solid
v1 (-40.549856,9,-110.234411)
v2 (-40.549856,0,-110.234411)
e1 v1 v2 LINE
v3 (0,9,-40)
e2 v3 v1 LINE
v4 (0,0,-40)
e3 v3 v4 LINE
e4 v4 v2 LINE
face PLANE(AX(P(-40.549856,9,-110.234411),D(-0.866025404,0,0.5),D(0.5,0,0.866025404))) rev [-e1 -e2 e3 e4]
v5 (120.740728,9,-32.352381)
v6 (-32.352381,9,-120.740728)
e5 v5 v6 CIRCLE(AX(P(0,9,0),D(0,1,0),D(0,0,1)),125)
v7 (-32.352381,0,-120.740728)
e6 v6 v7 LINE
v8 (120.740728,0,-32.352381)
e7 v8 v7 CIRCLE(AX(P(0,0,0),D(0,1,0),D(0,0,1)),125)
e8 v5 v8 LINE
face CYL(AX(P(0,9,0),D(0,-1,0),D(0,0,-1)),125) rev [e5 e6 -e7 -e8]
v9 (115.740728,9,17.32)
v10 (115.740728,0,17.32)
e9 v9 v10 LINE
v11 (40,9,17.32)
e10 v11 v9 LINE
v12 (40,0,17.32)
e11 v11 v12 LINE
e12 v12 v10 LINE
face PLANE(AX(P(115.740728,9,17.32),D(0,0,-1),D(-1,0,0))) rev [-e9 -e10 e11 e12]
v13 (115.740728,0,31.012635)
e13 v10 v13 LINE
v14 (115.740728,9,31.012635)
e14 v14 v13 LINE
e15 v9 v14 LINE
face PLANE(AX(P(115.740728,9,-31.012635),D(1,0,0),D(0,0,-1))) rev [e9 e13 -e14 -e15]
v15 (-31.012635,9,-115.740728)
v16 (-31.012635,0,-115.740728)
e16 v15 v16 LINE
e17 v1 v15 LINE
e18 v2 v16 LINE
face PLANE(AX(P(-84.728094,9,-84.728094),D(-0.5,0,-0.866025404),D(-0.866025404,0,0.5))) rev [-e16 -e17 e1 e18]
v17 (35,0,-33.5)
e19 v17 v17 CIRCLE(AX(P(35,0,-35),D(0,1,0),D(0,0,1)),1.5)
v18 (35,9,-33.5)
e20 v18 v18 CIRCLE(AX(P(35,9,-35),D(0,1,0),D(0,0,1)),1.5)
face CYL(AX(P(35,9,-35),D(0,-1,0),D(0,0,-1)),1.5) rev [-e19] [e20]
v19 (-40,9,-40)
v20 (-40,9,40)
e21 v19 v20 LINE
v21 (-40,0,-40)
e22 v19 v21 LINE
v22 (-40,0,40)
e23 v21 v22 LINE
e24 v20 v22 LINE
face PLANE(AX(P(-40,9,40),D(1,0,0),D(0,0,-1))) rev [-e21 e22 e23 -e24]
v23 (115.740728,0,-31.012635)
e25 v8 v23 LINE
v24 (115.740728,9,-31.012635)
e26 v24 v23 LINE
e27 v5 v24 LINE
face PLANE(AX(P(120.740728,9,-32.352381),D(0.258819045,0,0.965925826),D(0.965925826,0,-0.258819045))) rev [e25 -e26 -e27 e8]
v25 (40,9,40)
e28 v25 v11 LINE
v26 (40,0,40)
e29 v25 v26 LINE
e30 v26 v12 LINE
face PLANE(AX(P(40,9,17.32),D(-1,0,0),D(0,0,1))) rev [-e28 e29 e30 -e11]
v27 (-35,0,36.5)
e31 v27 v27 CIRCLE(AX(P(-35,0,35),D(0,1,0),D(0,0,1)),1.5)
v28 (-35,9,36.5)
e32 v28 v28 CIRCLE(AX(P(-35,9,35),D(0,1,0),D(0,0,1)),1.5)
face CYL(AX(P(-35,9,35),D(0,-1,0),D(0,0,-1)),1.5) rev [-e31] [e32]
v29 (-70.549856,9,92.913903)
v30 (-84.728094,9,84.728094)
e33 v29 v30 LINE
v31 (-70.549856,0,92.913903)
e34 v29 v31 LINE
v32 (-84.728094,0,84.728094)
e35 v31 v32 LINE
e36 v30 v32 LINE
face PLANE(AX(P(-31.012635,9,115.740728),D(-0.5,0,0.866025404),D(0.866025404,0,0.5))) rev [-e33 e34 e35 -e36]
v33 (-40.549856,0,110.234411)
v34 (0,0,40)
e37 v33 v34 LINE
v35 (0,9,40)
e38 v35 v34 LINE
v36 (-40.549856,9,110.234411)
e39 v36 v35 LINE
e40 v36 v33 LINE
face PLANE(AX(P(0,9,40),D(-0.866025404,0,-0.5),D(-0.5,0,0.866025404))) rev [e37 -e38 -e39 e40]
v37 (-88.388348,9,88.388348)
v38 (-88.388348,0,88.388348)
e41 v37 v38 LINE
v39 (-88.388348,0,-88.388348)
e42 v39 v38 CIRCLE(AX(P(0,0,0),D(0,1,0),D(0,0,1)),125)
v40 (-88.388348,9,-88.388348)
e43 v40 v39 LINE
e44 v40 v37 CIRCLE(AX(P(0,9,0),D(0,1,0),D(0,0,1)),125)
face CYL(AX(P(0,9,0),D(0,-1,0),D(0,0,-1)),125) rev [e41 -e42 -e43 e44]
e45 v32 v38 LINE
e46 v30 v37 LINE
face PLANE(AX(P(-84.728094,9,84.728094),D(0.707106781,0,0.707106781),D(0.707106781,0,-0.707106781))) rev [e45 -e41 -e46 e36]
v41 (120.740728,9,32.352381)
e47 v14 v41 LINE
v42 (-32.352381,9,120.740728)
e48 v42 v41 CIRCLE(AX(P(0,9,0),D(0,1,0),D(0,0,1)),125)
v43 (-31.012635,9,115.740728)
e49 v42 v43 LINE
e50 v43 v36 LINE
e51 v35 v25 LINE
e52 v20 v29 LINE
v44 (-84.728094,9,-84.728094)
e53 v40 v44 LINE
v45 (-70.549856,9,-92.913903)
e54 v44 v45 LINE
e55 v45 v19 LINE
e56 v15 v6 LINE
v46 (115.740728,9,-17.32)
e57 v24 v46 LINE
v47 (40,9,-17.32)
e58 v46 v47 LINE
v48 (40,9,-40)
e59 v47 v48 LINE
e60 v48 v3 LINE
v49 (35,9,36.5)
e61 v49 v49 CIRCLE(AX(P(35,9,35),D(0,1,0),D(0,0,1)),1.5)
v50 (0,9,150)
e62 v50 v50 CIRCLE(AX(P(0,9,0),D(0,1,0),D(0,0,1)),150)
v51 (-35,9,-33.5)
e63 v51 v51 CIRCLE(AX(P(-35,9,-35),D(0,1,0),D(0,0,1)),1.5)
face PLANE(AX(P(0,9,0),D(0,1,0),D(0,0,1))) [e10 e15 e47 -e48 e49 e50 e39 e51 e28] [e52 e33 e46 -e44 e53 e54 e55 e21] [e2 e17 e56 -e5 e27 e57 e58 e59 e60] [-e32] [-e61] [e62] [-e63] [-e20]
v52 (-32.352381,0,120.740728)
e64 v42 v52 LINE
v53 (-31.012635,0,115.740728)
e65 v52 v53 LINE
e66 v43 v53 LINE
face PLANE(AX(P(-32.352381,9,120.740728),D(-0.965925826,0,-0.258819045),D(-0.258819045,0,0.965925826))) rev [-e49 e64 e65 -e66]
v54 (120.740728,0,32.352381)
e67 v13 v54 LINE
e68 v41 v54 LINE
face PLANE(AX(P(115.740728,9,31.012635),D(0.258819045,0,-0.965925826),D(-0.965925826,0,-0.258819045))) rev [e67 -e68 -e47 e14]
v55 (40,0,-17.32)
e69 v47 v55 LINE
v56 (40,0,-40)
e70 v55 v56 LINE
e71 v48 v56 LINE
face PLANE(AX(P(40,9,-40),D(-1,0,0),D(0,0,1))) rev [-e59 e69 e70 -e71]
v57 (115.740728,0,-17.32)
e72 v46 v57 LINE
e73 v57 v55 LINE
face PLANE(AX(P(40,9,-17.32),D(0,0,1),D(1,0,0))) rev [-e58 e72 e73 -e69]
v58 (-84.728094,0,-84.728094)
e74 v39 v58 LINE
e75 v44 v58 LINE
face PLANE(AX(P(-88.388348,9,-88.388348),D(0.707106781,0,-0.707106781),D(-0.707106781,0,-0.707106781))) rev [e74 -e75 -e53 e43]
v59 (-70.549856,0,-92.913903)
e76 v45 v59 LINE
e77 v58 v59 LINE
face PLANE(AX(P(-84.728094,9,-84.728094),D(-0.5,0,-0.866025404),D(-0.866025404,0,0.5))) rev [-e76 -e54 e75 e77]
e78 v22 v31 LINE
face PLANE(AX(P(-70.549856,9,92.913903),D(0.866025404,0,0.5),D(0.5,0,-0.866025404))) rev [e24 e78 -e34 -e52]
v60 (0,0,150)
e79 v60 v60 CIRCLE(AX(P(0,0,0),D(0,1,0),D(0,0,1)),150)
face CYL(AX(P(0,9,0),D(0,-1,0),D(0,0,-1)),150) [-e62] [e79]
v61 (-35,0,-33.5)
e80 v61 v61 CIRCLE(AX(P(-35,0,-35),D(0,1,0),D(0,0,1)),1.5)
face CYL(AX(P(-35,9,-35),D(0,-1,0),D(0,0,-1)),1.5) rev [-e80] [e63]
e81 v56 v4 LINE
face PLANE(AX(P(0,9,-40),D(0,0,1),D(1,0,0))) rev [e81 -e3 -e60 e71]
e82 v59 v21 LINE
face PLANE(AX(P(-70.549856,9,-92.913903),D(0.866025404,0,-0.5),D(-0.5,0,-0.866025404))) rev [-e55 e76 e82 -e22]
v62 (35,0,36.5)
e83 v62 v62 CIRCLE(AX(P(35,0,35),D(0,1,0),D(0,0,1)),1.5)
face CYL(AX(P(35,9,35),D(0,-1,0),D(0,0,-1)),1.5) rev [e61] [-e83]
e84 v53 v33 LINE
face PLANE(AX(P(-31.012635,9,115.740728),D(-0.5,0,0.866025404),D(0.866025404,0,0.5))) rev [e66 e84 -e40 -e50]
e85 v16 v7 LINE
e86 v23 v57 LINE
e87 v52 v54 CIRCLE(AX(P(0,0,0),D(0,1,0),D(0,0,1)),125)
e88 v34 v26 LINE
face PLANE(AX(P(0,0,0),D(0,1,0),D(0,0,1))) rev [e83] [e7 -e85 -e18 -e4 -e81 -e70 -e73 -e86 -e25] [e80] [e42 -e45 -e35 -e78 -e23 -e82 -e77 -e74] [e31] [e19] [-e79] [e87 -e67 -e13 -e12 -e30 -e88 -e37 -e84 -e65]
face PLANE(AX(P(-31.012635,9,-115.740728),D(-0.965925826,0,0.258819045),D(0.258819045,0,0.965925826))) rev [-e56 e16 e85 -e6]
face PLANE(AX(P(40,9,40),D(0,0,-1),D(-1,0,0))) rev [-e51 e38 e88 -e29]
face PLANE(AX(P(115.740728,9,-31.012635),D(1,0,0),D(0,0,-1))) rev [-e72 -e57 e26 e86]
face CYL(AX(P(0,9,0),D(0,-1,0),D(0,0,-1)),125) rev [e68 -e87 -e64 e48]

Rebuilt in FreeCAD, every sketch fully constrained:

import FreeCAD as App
import Part
import Sketcher
Q = App.Units.Quantity


def add_polygon(sketch, points):
    """Adds a closed chain of lines whose ends are joined by coincident constraints."""
    first, n = sketch.GeometryCount, len(points)
    for a, b in zip(points, points[1:] + points[:1]):
        sketch.addGeometry(Part.LineSegment(App.Vector(*a, 0), App.Vector(*b, 0)), False)
    for i in range(n):
        sketch.addConstraint(Sketcher.Constraint("Coincident", first + i, 2, first + (i + 1) % n, 1))

doc = App.newDocument("Part")
body = doc.addObject("PartDesign::Body", "Body")

# Sketch on XZ plane
sketch1 = body.newObject("Sketcher::SketchObject", "Sketch")
sketch1.AttachmentSupport = (doc.getObject("XZ_Plane"), [""])
sketch1.MapMode = "FlatFace"
sketch1.addGeometry([
    Part.Circle(App.Vector(0, 0, 0), App.Vector(0, 0, 1), 150),
    Part.Circle(App.Vector(0, 0, 0), App.Vector(0, 0, 1), 125),
], False)
sketch1.addConstraint([
    Sketcher.Constraint("Coincident", 0, 3, -1, 1),
    Sketcher.Constraint("Coincident", 1, 3, -1, 1),
    Sketcher.Constraint("Diameter", 0, Q("300 mm")),
    Sketcher.Constraint("Diameter", 1, Q("250 mm")),
])
pad1 = body.newObject("PartDesign::Pad", "Pad")
pad1.Profile = sketch1
pad1.Length = 9
pad1.Reversed = True

# Sketch on XZ plane
sketch2 = body.newObject("Sketcher::SketchObject", "Sketch001")
sketch2.AttachmentSupport = (doc.getObject("XZ_Plane"), [""])
sketch2.MapMode = "FlatFace"
add_polygon(sketch2, [(146.469531, -32.352381), (120.740728, -32.352381), (115.740728, -31.012635), (115.740728, 31.012635), (120.740728, 32.352381), (146.469531, 32.352381)])  # lines 0-5
add_polygon(sketch2, [(-88.388348, 88.388348), (-101.252749, 110.670144), (-45.216782, 143.022525), (-32.352381, 120.740728), (-31.012635, 115.740728), (-84.728094, 84.728094)])  # lines 6-11
add_polygon(sketch2, [(-32.352381, -120.740728), (-45.216782, -143.022525), (-101.252749, -110.670144), (-88.388348, -88.388348), (-84.728094, -84.728094), (-31.012635, -115.740728)])  # lines 12-17
sketch2.addConstraint([
    Sketcher.Constraint("Horizontal", 0),
    Sketcher.Constraint("Vertical", 2),
    Sketcher.Constraint("Horizontal", 4),
    Sketcher.Constraint("Vertical", 5),
    Sketcher.Constraint("Symmetric", 0, 2, 3, 2, -1),
    Sketcher.Constraint("Symmetric", 7, 2, 12, 2, -1),
    Sketcher.Constraint("Symmetric", 6, 2, 13, 2, -1),
    Sketcher.Constraint("Symmetric", 11, 2, 14, 2, -1),
    Sketcher.Constraint("Symmetric", 10, 2, 15, 2, -1),
    Sketcher.Constraint("Symmetric", 9, 2, 16, 2, -1),
    Sketcher.Constraint("Symmetric", 8, 2, 17, 2, -1),
    Sketcher.Constraint("Perpendicular", 6, 7),
    Sketcher.Constraint("Perpendicular", 7, 8),
    Sketcher.Constraint("Perpendicular", 3, 9),
    Sketcher.Constraint("Perpendicular", 8, 10),
    Sketcher.Constraint("Perpendicular", 11, 15),
    Sketcher.Constraint("Perpendicular", 1, 17),
    Sketcher.Constraint("Equal", 6, 8),
    Sketcher.Constraint("Equal", 3, 9),
    Sketcher.Constraint("Equal", 9, 11),
    Sketcher.Constraint("Angle", 1, Q("165 deg")),
    Sketcher.Constraint("DistanceX", 1, 2, 0, 2, Q("5 mm")),
    Sketcher.Constraint("DistanceY", 2, 1, 2, 2, Q("62.025269 mm")),
    Sketcher.Constraint("DistanceX", 7, 2, 8, 2, Q("12.864401 mm")),
    Sketcher.Constraint("Distance", 7, Q("64.704761 mm")),
    Sketcher.Constraint("DistanceX", 0, 2, 0, 1, Q("25.728803 mm")),
    Sketcher.Constraint("DistanceX", -1, 1, 0, 2, Q("120.740728 mm")),
    Sketcher.Constraint("DistanceX", 6, 2, -1, 1, Q("101.252749 mm")),
    Sketcher.Constraint("DistanceY", -1, 1, 8, 2, Q("120.740728 mm")),
])
pad2 = body.newObject("PartDesign::Pad", "Pad001")
pad2.Profile = sketch2
pad2.Length = 9
pad2.Reversed = True

# Sketch on XZ plane
sketch3 = body.newObject("Sketcher::SketchObject", "Sketch002")
sketch3.AttachmentSupport = (doc.getObject("XZ_Plane"), [""])
sketch3.MapMode = "FlatFace"
add_polygon(sketch3, [(-70.549856, -92.913903), (-40, -40), (-40, 40), (-70.549856, 92.913903), (-40.549856, 110.234411), (0, 40), (40, 40), (40, 17.32), (115.740728, 17.32), (115.740728, -17.32), (40, -17.32), (40, -40), (0, -40), (-40.549856, -110.234411)])  # lines 0-13
sketch3.addGeometry(Part.Circle(App.Vector(-35, 35, 0), App.Vector(0, 0, 1), 1.5), False)  # 14
sketch3.addGeometry(Part.Circle(App.Vector(35, 35, 0), App.Vector(0, 0, 1), 1.5), False)  # 15
sketch3.addGeometry(Part.Circle(App.Vector(-35, -35, 0), App.Vector(0, 0, 1), 1.5), False)  # 16
sketch3.addGeometry(Part.Circle(App.Vector(35, -35, 0), App.Vector(0, 0, 1), 1.5), False)  # 17
sketch3.addConstraint([
    Sketcher.Constraint("Vertical", 1),
    Sketcher.Constraint("Horizontal", 5),
    Sketcher.Constraint("Vertical", 6),
    Sketcher.Constraint("Horizontal", 7),
    Sketcher.Constraint("Vertical", 8),
    Sketcher.Constraint("Horizontal", 9),
    Sketcher.Constraint("Vertical", 10),
    Sketcher.Constraint("Horizontal", 11),
    Sketcher.Constraint("Equal", 14, 15),
    Sketcher.Constraint("Equal", 15, 16),
    Sketcher.Constraint("Equal", 16, 17),
    Sketcher.Constraint("Symmetric", 15, 3, 16, 3, -1, 1),
    Sketcher.Constraint("Symmetric", 14, 3, 17, 3, -1, 1),
    Sketcher.Constraint("Symmetric", 0, 2, 5, 2, -1, 1),
    Sketcher.Constraint("Symmetric", 1, 2, 10, 2, -1, 1),
    Sketcher.Constraint("Symmetric", 4, 2, 11, 2, -1, 1),
    Sketcher.Constraint("Symmetric", 14, 3, 15, 3, -2),
    Sketcher.Constraint("Symmetric", 3, 2, 12, 2, -1),
    Sketcher.Constraint("Symmetric", 2, 2, 13, 2, -1),
    Sketcher.Constraint("PointOnObject", 4, 2, -2),
    Sketcher.Constraint("Perpendicular", 2, 3),
    Sketcher.Constraint("Perpendicular", 3, 4),
    Sketcher.Constraint("Equal", 6, 10),
    Sketcher.Constraint("Diameter", 14, Q("3 mm")),
    Sketcher.Constraint("DistanceX", 5, 1, 5, 2, Q("40 mm")),
    Sketcher.Constraint("DistanceY", 1, 1, 1, 2, Q("80 mm")),
    Sketcher.Constraint("Angle", 0, Q("60 deg")),
    Sketcher.Constraint("DistanceX", 14, 3, -1, 1, Q("35 mm")),
    Sketcher.Constraint("DistanceY", -1, 1, 14, 3, Q("35 mm")),
    Sketcher.Constraint("DistanceY", 6, 2, 6, 1, Q("22.68 mm")),
    Sketcher.Constraint("DistanceX", 7, 1, 7, 2, Q("75.740728 mm")),
    Sketcher.Constraint("DistanceY", -1, 1, 3, 2, Q("110.234411 mm")),
])
pad3 = body.newObject("PartDesign::Pad", "Pad002")
pad3.Profile = sketch3
pad3.Length = 9
pad3.Reversed = True

doc.recompute()
